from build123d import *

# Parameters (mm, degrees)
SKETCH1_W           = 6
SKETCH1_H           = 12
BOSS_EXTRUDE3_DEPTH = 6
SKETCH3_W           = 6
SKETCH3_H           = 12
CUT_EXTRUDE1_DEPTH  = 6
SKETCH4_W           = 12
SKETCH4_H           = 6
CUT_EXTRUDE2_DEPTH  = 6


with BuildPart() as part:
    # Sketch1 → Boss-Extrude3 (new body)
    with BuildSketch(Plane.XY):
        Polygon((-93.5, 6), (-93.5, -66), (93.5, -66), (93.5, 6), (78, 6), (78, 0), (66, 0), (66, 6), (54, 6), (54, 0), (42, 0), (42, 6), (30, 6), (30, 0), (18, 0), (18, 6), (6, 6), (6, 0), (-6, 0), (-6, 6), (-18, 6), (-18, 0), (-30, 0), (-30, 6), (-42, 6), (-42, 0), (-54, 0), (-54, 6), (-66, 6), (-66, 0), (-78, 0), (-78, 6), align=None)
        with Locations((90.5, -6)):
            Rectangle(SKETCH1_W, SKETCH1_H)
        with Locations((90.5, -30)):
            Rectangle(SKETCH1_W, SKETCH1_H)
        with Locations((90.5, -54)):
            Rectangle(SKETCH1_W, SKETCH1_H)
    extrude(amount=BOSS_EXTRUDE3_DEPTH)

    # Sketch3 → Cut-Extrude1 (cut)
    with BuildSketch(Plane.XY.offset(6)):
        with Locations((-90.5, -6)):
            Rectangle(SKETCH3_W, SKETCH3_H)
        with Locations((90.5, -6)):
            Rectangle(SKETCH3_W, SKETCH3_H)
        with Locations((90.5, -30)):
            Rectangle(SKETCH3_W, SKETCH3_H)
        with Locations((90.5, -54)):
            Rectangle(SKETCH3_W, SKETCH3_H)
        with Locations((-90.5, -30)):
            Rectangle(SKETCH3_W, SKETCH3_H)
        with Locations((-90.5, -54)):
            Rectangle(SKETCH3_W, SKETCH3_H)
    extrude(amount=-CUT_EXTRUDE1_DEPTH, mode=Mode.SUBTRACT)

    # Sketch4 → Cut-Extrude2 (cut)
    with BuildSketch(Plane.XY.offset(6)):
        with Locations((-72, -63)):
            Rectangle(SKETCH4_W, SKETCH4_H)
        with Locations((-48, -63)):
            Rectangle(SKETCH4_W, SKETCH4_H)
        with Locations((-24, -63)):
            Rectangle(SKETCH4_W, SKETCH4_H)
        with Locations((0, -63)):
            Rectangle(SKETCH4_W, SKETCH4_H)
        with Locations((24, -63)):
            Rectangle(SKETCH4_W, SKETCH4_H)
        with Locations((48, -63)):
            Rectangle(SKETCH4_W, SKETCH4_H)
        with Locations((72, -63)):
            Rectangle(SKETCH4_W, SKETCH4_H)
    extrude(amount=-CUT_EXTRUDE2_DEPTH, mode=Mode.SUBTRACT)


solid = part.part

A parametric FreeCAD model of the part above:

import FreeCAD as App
import Part
import Sketcher

doc = App.newDocument("Part")
body = doc.addObject("PartDesign::Body", "Body")

# Sketch on XY plane
sketch1 = body.newObject("Sketcher::SketchObject", "Sketch")
sketch1.AttachmentSupport = (doc.getObject("XY_Plane"), [""])
sketch1.MapMode = "FlatFace"
sketch1.addGeometry(Part.LineSegment(App.Vector(-66, 0, 0), App.Vector(-78, 0, 0)), False)
sketch1.addGeometry(Part.LineSegment(App.Vector(-78, 0, 0), App.Vector(-78, 6, 0)), False)
sketch1.addGeometry(Part.LineSegment(App.Vector(-78, 6, 0), App.Vector(-93.5, 6, 0)), False)
sketch1.addGeometry(Part.LineSegment(App.Vector(-93.5, 6, 0), App.Vector(-93.5, -66, 0)), False)
sketch1.addGeometry(Part.LineSegment(App.Vector(-93.5, -66, 0), App.Vector(93.5, -66, 0)), False)
sketch1.addGeometry(Part.LineSegment(App.Vector(93.5, -66, 0), App.Vector(93.5, 6, 0)), False)
sketch1.addGeometry(Part.LineSegment(App.Vector(93.5, 6, 0), App.Vector(78, 6, 0)), False)
sketch1.addGeometry(Part.LineSegment(App.Vector(78, 6, 0), App.Vector(78, 0, 0)), False)
sketch1.addGeometry(Part.LineSegment(App.Vector(78, 0, 0), App.Vector(66, 0, 0)), False)
sketch1.addGeometry(Part.LineSegment(App.Vector(66, 0, 0), App.Vector(66, 6, 0)), False)
sketch1.addGeometry(Part.LineSegment(App.Vector(66, 6, 0), App.Vector(54, 6, 0)), False)
sketch1.addGeometry(Part.LineSegment(App.Vector(54, 6, 0), App.Vector(54, 0, 0)), False)
sketch1.addGeometry(Part.LineSegment(App.Vector(54, 0, 0), App.Vector(42, 0, 0)), False)
sketch1.addGeometry(Part.LineSegment(App.Vector(42, 0, 0), App.Vector(42, 6, 0)), False)
sketch1.addGeometry(Part.LineSegment(App.Vector(42, 6, 0), App.Vector(30, 6, 0)), False)
sketch1.addGeometry(Part.LineSegment(App.Vector(30, 6, 0), App.Vector(30, 0, 0)), False)
sketch1.addGeometry(Part.LineSegment(App.Vector(30, 0, 0), App.Vector(18, 0, 0)), False)
sketch1.addGeometry(Part.LineSegment(App.Vector(18, 0, 0), App.Vector(18, 6, 0)), False)
sketch1.addGeometry(Part.LineSegment(App.Vector(18, 6, 0), App.Vector(6, 6, 0)), False)
sketch1.addGeometry(Part.LineSegment(App.Vector(6, 6, 0), App.Vector(6, 0, 0)), False)
sketch1.addGeometry(Part.LineSegment(App.Vector(6, 0, 0), App.Vector(-6, 0, 0)), False)
sketch1.addGeometry(Part.LineSegment(App.Vector(-6, 0, 0), App.Vector(-6, 6, 0)), False)
sketch1.addGeometry(Part.LineSegment(App.Vector(-6, 6, 0), App.Vector(-18, 6, 0)), False)
sketch1.addGeometry(Part.LineSegment(App.Vector(-18, 6, 0), App.Vector(-18, 0, 0)), False)
sketch1.addGeometry(Part.LineSegment(App.Vector(-18, 0, 0), App.Vector(-30, 0, 0)), False)
sketch1.addGeometry(Part.LineSegment(App.Vector(-30, 0, 0), App.Vector(-30, 6, 0)), False)
sketch1.addGeometry(Part.LineSegment(App.Vector(-30, 6, 0), App.Vector(-42, 6, 0)), False)
sketch1.addGeometry(Part.LineSegment(App.Vector(-42, 6, 0), App.Vector(-42, 0, 0)), False)
sketch1.addGeometry(Part.LineSegment(App.Vector(-42, 0, 0), App.Vector(-54, 0, 0)), False)
sketch1.addGeometry(Part.LineSegment(App.Vector(-54, 0, 0), App.Vector(-54, 6, 0)), False)
sketch1.addGeometry(Part.LineSegment(App.Vector(-54, 6, 0), App.Vector(-66, 6, 0)), False)
sketch1.addGeometry(Part.LineSegment(App.Vector(-66, 6, 0), App.Vector(-66, 0, 0)), False)
sketch1.addConstraint(Sketcher.Constraint("Coincident", 0, 2, 1, 1))
sketch1.addConstraint(Sketcher.Constraint("Coincident", 1, 2, 2, 1))
sketch1.addConstraint(Sketcher.Constraint("Coincident", 2, 2, 3, 1))
sketch1.addConstraint(Sketcher.Constraint("Coincident", 3, 2, 4, 1))
sketch1.addConstraint(Sketcher.Constraint("Coincident", 4, 2, 5, 1))
sketch1.addConstraint(Sketcher.Constraint("Coincident", 5, 2, 6, 1))
sketch1.addConstraint(Sketcher.Constraint("Coincident", 6, 2, 7, 1))
sketch1.addConstraint(Sketcher.Constraint("Coincident", 7, 2, 8, 1))
sketch1.addConstraint(Sketcher.Constraint("Coincident", 8, 2, 9, 1))
sketch1.addConstraint(Sketcher.Constraint("Coincident", 9, 2, 10, 1))
sketch1.addConstraint(Sketcher.Constraint("Coincident", 10, 2, 11, 1))
sketch1.addConstraint(Sketcher.Constraint("Coincident", 11, 2, 12, 1))
sketch1.addConstraint(Sketcher.Constraint("Coincident", 12, 2, 13, 1))
sketch1.addConstraint(Sketcher.Constraint("Coincident", 13, 2, 14, 1))
sketch1.addConstraint(Sketcher.Constraint("Coincident", 14, 2, 15, 1))
sketch1.addConstraint(Sketcher.Constraint("Coincident", 15, 2, 16, 1))
sketch1.addConstraint(Sketcher.Constraint("Coincident", 16, 2, 17, 1))
sketch1.addConstraint(Sketcher.Constraint("Coincident", 17, 2, 18, 1))
sketch1.addConstraint(Sketcher.Constraint("Coincident", 18, 2, 19, 1))
sketch1.addConstraint(Sketcher.Constraint("Coincident", 19, 2, 20, 1))
sketch1.addConstraint(Sketcher.Constraint("Coincident", 20, 2, 21, 1))
sketch1.addConstraint(Sketcher.Constraint("Coincident", 21, 2, 22, 1))
sketch1.addConstraint(Sketcher.Constraint("Coincident", 22, 2, 23, 1))
sketch1.addConstraint(Sketcher.Constraint("Coincident", 23, 2, 24, 1))
sketch1.addConstraint(Sketcher.Constraint("Coincident", 24, 2, 25, 1))
sketch1.addConstraint(Sketcher.Constraint("Coincident", 25, 2, 26, 1))
sketch1.addConstraint(Sketcher.Constraint("Coincident", 26, 2, 27, 1))
sketch1.addConstraint(Sketcher.Constraint("Coincident", 27, 2, 28, 1))
sketch1.addConstraint(Sketcher.Constraint("Coincident", 28, 2, 29, 1))
sketch1.addConstraint(Sketcher.Constraint("Coincident", 29, 2, 30, 1))
sketch1.addConstraint(Sketcher.Constraint("Coincident", 30, 2, 31, 1))
sketch1.addConstraint(Sketcher.Constraint("Coincident", 31, 2, 0, 1))
sketch1.addConstraint(Sketcher.Constraint("Horizontal", 0))
sketch1.addConstraint(Sketcher.Constraint("Vertical", 1))
sketch1.addConstraint(Sketcher.Constraint("Horizontal", 2))
sketch1.addConstraint(Sketcher.Constraint("Vertical", 3))
sketch1.addConstraint(Sketcher.Constraint("Horizontal", 4))
sketch1.addConstraint(Sketcher.Constraint("Vertical", 5))
sketch1.addConstraint(Sketcher.Constraint("Horizontal", 6))
sketch1.addConstraint(Sketcher.Constraint("Vertical", 7))
sketch1.addConstraint(Sketcher.Constraint("Horizontal", 8))
sketch1.addConstraint(Sketcher.Constraint("Vertical", 9))
sketch1.addConstraint(Sketcher.Constraint("Horizontal", 10))
sketch1.addConstraint(Sketcher.Constraint("Vertical", 11))
sketch1.addConstraint(Sketcher.Constraint("Horizontal", 12))
sketch1.addConstraint(Sketcher.Constraint("Vertical", 13))
sketch1.addConstraint(Sketcher.Constraint("Horizontal", 14))
sketch1.addConstraint(Sketcher.Constraint("Vertical", 15))
sketch1.addConstraint(Sketcher.Constraint("Horizontal", 16))
sketch1.addConstraint(Sketcher.Constraint("Vertical", 17))
sketch1.addConstraint(Sketcher.Constraint("Horizontal", 18))
sketch1.addConstraint(Sketcher.Constraint("Vertical", 19))
sketch1.addConstraint(Sketcher.Constraint("Horizontal", 20))
sketch1.addConstraint(Sketcher.Constraint("Vertical", 21))
sketch1.addConstraint(Sketcher.Constraint("Horizontal", 22))
sketch1.addConstraint(Sketcher.Constraint("Vertical", 23))
sketch1.addConstraint(Sketcher.Constraint("Horizontal", 24))
sketch1.addConstraint(Sketcher.Constraint("Vertical", 25))
sketch1.addConstraint(Sketcher.Constraint("Horizontal", 26))
sketch1.addConstraint(Sketcher.Constraint("Vertical", 27))
sketch1.addConstraint(Sketcher.Constraint("Horizontal", 28))
sketch1.addConstraint(Sketcher.Constraint("Vertical", 29))
sketch1.addConstraint(Sketcher.Constraint("Horizontal", 30))
sketch1.addConstraint(Sketcher.Constraint("Vertical", 31))
sketch1.addConstraint(Sketcher.Constraint("Symmetric", 0, 2, 7, 2, -1, 1))
sketch1.addConstraint(Sketcher.Constraint("Symmetric", 19, 2, 20, 2, -1, 1))
sketch1.addConstraint(Sketcher.Constraint("Symmetric", 16, 2, 23, 2, -1, 1))
sketch1.addConstraint(Sketcher.Constraint("Symmetric", 12, 2, 27, 2, -1, 1))
sketch1.addConstraint(Sketcher.Constraint("Symmetric", 2, 2, 5, 2, -2))
sketch1.addConstraint(Sketcher.Constraint("Symmetric", 15, 2, 24, 2, -2))
sketch1.addConstraint(Sketcher.Constraint("Symmetric", 11, 2, 28, 2, -2))
sketch1.addConstraint(Sketcher.Constraint("Symmetric", 9, 2, 30, 2, -2))
sketch1.addConstraint(Sketcher.Constraint("PointOnObject", 0, 2, -1))
sketch1.addConstraint(Sketcher.Constraint("Horizontal", 6, 2, 9, 2))
sketch1.addConstraint(Sketcher.Constraint("Horizontal", 10, 2, 13, 2))
sketch1.addConstraint(Sketcher.Constraint("Horizontal", 14, 2, 17, 2))
sketch1.addConstraint(Sketcher.Constraint("Horizontal", 18, 2, 21, 2))
sketch1.addConstraint(Sketcher.Constraint("Horizontal", 22, 2, 25, 2))
sketch1.addConstraint(Sketcher.Constraint("Equal", 8, 10))
sketch1.addConstraint(Sketcher.Constraint("Equal", 10, 12))
sketch1.addConstraint(Sketcher.Constraint("Equal", 12, 14))
sketch1.addConstraint(Sketcher.Constraint("Equal", 14, 16))
sketch1.addConstraint(Sketcher.Constraint("Equal", 16, 18))
sketch1.addConstraint(Sketcher.Constraint("Equal", 18, 20))
sketch1.addConstraint(Sketcher.Constraint("DistanceX", 0, 2, 0, 1, 12.0))
sketch1.addConstraint(Sketcher.Constraint("DistanceX", 4, 1, 4, 2, 187.0))
sketch1.addConstraint(Sketcher.Constraint("DistanceY", 1, 1, 1, 2, 6.0))
sketch1.addConstraint(Sketcher.Constraint("DistanceY", 3, 2, 3, 1, 72.0))
pad1 = body.newObject("PartDesign::Pad", "Pad")
pad1.Profile = sketch1
pad1.Length = 6

# Sketch on XY plane
sketch2 = body.newObject("Sketcher::SketchObject", "Sketch001")
sketch2.AttachmentSupport = (doc.getObject("XY_Plane"), [""])
sketch2.MapMode = "FlatFace"
sketch2.AttachmentOffset = App.Placement(App.Vector(0, 0, 6), App.Rotation())
sketch2.addGeometry(Part.LineSegment(App.Vector(-93.5, 0, 0), App.Vector(-93.5, -12, 0)), False)
sketch2.addGeometry(Part.LineSegment(App.Vector(-93.5, -12, 0), App.Vector(-87.5, -12, 0)), False)
sketch2.addGeometry(Part.LineSegment(App.Vector(-87.5, -12, 0), App.Vector(-87.5, 0, 0)), False)
sketch2.addGeometry(Part.LineSegment(App.Vector(-87.5, 0, 0), App.Vector(-93.5, 0, 0)), False)
sketch2.addGeometry(Part.LineSegment(App.Vector(87.5, 0, 0), App.Vector(87.5, -12, 0)), False)
sketch2.addGeometry(Part.LineSegment(App.Vector(87.5, -12, 0), App.Vector(93.5, -12, 0)), False)
sketch2.addGeometry(Part.LineSegment(App.Vector(93.5, -12, 0), App.Vector(93.5, 0, 0)), False)
sketch2.addGeometry(Part.LineSegment(App.Vector(93.5, 0, 0), App.Vector(87.5, 0, 0)), False)
sketch2.addGeometry(Part.LineSegment(App.Vector(87.5, -24, 0), App.Vector(87.5, -36, 0)), False)
sketch2.addGeometry(Part.LineSegment(App.Vector(87.5, -36, 0), App.Vector(93.5, -36, 0)), False)
sketch2.addGeometry(Part.LineSegment(App.Vector(93.5, -36, 0), App.Vector(93.5, -24, 0)), False)
sketch2.addGeometry(Part.LineSegment(App.Vector(93.5, -24, 0), App.Vector(87.5, -24, 0)), False)
sketch2.addGeometry(Part.LineSegment(App.Vector(87.5, -48, 0), App.Vector(87.5, -60, 0)), False)
sketch2.addGeometry(Part.LineSegment(App.Vector(87.5, -60, 0), App.Vector(93.5, -60, 0)), False)
sketch2.addGeometry(Part.LineSegment(App.Vector(93.5, -60, 0), App.Vector(93.5, -48, 0)), False)
sketch2.addGeometry(Part.LineSegment(App.Vector(93.5, -48, 0), App.Vector(87.5, -48, 0)), False)
sketch2.addGeometry(Part.LineSegment(App.Vector(-93.5, -24, 0), App.Vector(-93.5, -36, 0)), False)
sketch2.addGeometry(Part.LineSegment(App.Vector(-93.5, -36, 0), App.Vector(-87.5, -36, 0)), False)
sketch2.addGeometry(Part.LineSegment(App.Vector(-87.5, -36, 0), App.Vector(-87.5, -24, 0)), False)
sketch2.addGeometry(Part.LineSegment(App.Vector(-87.5, -24, 0), App.Vector(-93.5, -24, 0)), False)
sketch2.addGeometry(Part.LineSegment(App.Vector(-93.5, -48, 0), App.Vector(-93.5, -60, 0)), False)
sketch2.addGeometry(Part.LineSegment(App.Vector(-93.5, -60, 0), App.Vector(-87.5, -60, 0)), False)
sketch2.addGeometry(Part.LineSegment(App.Vector(-87.5, -60, 0), App.Vector(-87.5, -48, 0)), False)
sketch2.addGeometry(Part.LineSegment(App.Vector(-87.5, -48, 0), App.Vector(-93.5, -48, 0)), False)
sketch2.addConstraint(Sketcher.Constraint("Coincident", 0, 2, 1, 1))
sketch2.addConstraint(Sketcher.Constraint("Coincident", 1, 2, 2, 1))
sketch2.addConstraint(Sketcher.Constraint("Coincident", 2, 2, 3, 1))
sketch2.addConstraint(Sketcher.Constraint("Coincident", 3, 2, 0, 1))
sketch2.addConstraint(Sketcher.Constraint("Coincident", 4, 2, 5, 1))
sketch2.addConstraint(Sketcher.Constraint("Coincident", 5, 2, 6, 1))
sketch2.addConstraint(Sketcher.Constraint("Coincident", 6, 2, 7, 1))
sketch2.addConstraint(Sketcher.Constraint("Coincident", 7, 2, 4, 1))
sketch2.addConstraint(Sketcher.Constraint("Coincident", 8, 2, 9, 1))
sketch2.addConstraint(Sketcher.Constraint("Coincident", 9, 2, 10, 1))
sketch2.addConstraint(Sketcher.Constraint("Coincident", 10, 2, 11, 1))
sketch2.addConstraint(Sketcher.Constraint("Coincident", 11, 2, 8, 1))
sketch2.addConstraint(Sketcher.Constraint("Coincident", 12, 2, 13, 1))
sketch2.addConstraint(Sketcher.Constraint("Coincident", 13, 2, 14, 1))
sketch2.addConstraint(Sketcher.Constraint("Coincident", 14, 2, 15, 1))
sketch2.addConstraint(Sketcher.Constraint("Coincident", 15, 2, 12, 1))
sketch2.addConstraint(Sketcher.Constraint("Coincident", 16, 2, 17, 1))
sketch2.addConstraint(Sketcher.Constraint("Coincident", 17, 2, 18, 1))
sketch2.addConstraint(Sketcher.Constraint("Coincident", 18, 2, 19, 1))
sketch2.addConstraint(Sketcher.Constraint("Coincident", 19, 2, 16, 1))
sketch2.addConstraint(Sketcher.Constraint("Coincident", 20, 2, 21, 1))
sketch2.addConstraint(Sketcher.Constraint("Coincident", 21, 2, 22, 1))
sketch2.addConstraint(Sketcher.Constraint("Coincident", 22, 2, 23, 1))
sketch2.addConstraint(Sketcher.Constraint("Coincident", 23, 2, 20, 1))
sketch2.addConstraint(Sketcher.Constraint("Vertical", 0))
sketch2.addConstraint(Sketcher.Constraint("Horizontal", 1))
sketch2.addConstraint(Sketcher.Constraint("Vertical", 2))
sketch2.addConstraint(Sketcher.Constraint("Horizontal", 3))
sketch2.addConstraint(Sketcher.Constraint("Vertical", 4))
sketch2.addConstraint(Sketcher.Constraint("Horizontal", 5))
sketch2.addConstraint(Sketcher.Constraint("Vertical", 6))
sketch2.addConstraint(Sketcher.Constraint("Horizontal", 7))
sketch2.addConstraint(Sketcher.Constraint("Vertical", 8))
sketch2.addConstraint(Sketcher.Constraint("Horizontal", 9))
sketch2.addConstraint(Sketcher.Constraint("Vertical", 10))
sketch2.addConstraint(Sketcher.Constraint("Horizontal", 11))
sketch2.addConstraint(Sketcher.Constraint("Vertical", 12))
sketch2.addConstraint(Sketcher.Constraint("Horizontal", 13))
sketch2.addConstraint(Sketcher.Constraint("Vertical", 14))
sketch2.addConstraint(Sketcher.Constraint("Horizontal", 15))
sketch2.addConstraint(Sketcher.Constraint("Vertical", 16))
sketch2.addConstraint(Sketcher.Constraint("Horizontal", 17))
sketch2.addConstraint(Sketcher.Constraint("Vertical", 18))
sketch2.addConstraint(Sketcher.Constraint("Horizontal", 19))
sketch2.addConstraint(Sketcher.Constraint("Vertical", 20))
sketch2.addConstraint(Sketcher.Constraint("Horizontal", 21))
sketch2.addConstraint(Sketcher.Constraint("Vertical", 22))
sketch2.addConstraint(Sketcher.Constraint("Horizontal", 23))
sketch2.addConstraint(Sketcher.Constraint("Symmetric", 3, 2, 6, 2, -1, 1))
sketch2.addConstraint(Sketcher.Constraint("Symmetric", 1, 2, 4, 2, -2))
sketch2.addConstraint(Sketcher.Constraint("Symmetric", 9, 2, 16, 2, -2))
sketch2.addConstraint(Sketcher.Constraint("Symmetric", 11, 2, 18, 2, -2))
sketch2.addConstraint(Sketcher.Constraint("Symmetric", 13, 2, 20, 2, -2))
sketch2.addConstraint(Sketcher.Constraint("Symmetric", 15, 2, 22, 2, -2))
sketch2.addConstraint(Sketcher.Constraint("PointOnObject", 2, 2, -1))
sketch2.addConstraint(Sketcher.Constraint("Vertical", 7, 2, 8, 2))
sketch2.addConstraint(Sketcher.Constraint("Vertical", 6, 2, 9, 2))
sketch2.addConstraint(Sketcher.Constraint("Vertical", 11, 2, 12, 2))
sketch2.addConstraint(Sketcher.Constraint("Vertical", 10, 2, 13, 2))
sketch2.addConstraint(Sketcher.Constraint("Equal", 6, 8))
sketch2.addConstraint(Sketcher.Constraint("Equal", 10, 12))
sketch2.addConstraint(Sketcher.Constraint("DistanceX", 1, 1, 1, 2, 6.0))
sketch2.addConstraint(Sketcher.Constraint("DistanceY", 0, 2, 0, 1, 12.0))
sketch2.addConstraint(Sketcher.Constraint("DistanceY", 8, 2, -1, 1, 36.0))
sketch2.addConstraint(Sketcher.Constraint("DistanceY", 12, 2, -1, 1, 60.0))
sketch2.addConstraint(Sketcher.Constraint("DistanceX", 1, 2, 4, 2, 175.0))
pocket1 = body.newObject("PartDesign::Pocket", "Pocket")
pocket1.Profile = sketch2
pocket1.Length = 6

# Sketch on XY plane
sketch3 = body.newObject("Sketcher::SketchObject", "Sketch002")
sketch3.AttachmentSupport = (doc.getObject("XY_Plane"), [""])
sketch3.MapMode = "FlatFace"
sketch3.AttachmentOffset = App.Placement(App.Vector(0, 0, 6), App.Rotation())
sketch3.addGeometry(Part.LineSegment(App.Vector(-78, -60, 0), App.Vector(-78, -66, 0)), False)
sketch3.addGeometry(Part.LineSegment(App.Vector(-78, -66, 0), App.Vector(-66, -66, 0)), False)
sketch3.addGeometry(Part.LineSegment(App.Vector(-66, -66, 0), App.Vector(-66, -60, 0)), False)
sketch3.addGeometry(Part.LineSegment(App.Vector(-66, -60, 0), App.Vector(-78, -60, 0)), False)
sketch3.addGeometry(Part.LineSegment(App.Vector(-54, -60, 0), App.Vector(-54, -66, 0)), False)
sketch3.addGeometry(Part.LineSegment(App.Vector(-54, -66, 0), App.Vector(-42, -66, 0)), False)
sketch3.addGeometry(Part.LineSegment(App.Vector(-42, -66, 0), App.Vector(-42, -60, 0)), False)
sketch3.addGeometry(Part.LineSegment(App.Vector(-42, -60, 0), App.Vector(-54, -60, 0)), False)
sketch3.addGeometry(Part.LineSegment(App.Vector(-30, -60, 0), App.Vector(-30, -66, 0)), False)
sketch3.addGeometry(Part.LineSegment(App.Vector(-30, -66, 0), App.Vector(-18, -66, 0)), False)
sketch3.addGeometry(Part.LineSegment(App.Vector(-18, -66, 0), App.Vector(-18, -60, 0)), False)
sketch3.addGeometry(Part.LineSegment(App.Vector(-18, -60, 0), App.Vector(-30, -60, 0)), False)
sketch3.addGeometry(Part.LineSegment(App.Vector(-6, -60, 0), App.Vector(-6, -66, 0)), False)
sketch3.addGeometry(Part.LineSegment(App.Vector(-6, -66, 0), App.Vector(6, -66, 0)), False)
sketch3.addGeometry(Part.LineSegment(App.Vector(6, -66, 0), App.Vector(6, -60, 0)), False)
sketch3.addGeometry(Part.LineSegment(App.Vector(6, -60, 0), App.Vector(-6, -60, 0)), False)
sketch3.addGeometry(Part.LineSegment(App.Vector(18, -60, 0), App.Vector(18, -66, 0)), False)
sketch3.addGeometry(Part.LineSegment(App.Vector(18, -66, 0), App.Vector(30, -66, 0)), False)
sketch3.addGeometry(Part.LineSegment(App.Vector(30, -66, 0), App.Vector(30, -60, 0)), False)
sketch3.addGeometry(Part.LineSegment(App.Vector(30, -60, 0), App.Vector(18, -60, 0)), False)
sketch3.addGeometry(Part.LineSegment(App.Vector(42, -60, 0), App.Vector(42, -66, 0)), False)
sketch3.addGeometry(Part.LineSegment(App.Vector(42, -66, 0), App.Vector(54, -66, 0)), False)
sketch3.addGeometry(Part.LineSegment(App.Vector(54, -66, 0), App.Vector(54, -60, 0)), False)
sketch3.addGeometry(Part.LineSegment(App.Vector(54, -60, 0), App.Vector(42, -60, 0)), False)
sketch3.addGeometry(Part.LineSegment(App.Vector(66, -60, 0), App.Vector(66, -66, 0)), False)
sketch3.addGeometry(Part.LineSegment(App.Vector(66, -66, 0), App.Vector(78, -66, 0)), False)
sketch3.addGeometry(Part.LineSegment(App.Vector(78, -66, 0), App.Vector(78, -60, 0)), False)
sketch3.addGeometry(Part.LineSegment(App.Vector(78, -60, 0), App.Vector(66, -60, 0)), False)
sketch3.addConstraint(Sketcher.Constraint("Coincident", 0, 2, 1, 1))
sketch3.addConstraint(Sketcher.Constraint("Coincident", 1, 2, 2, 1))
sketch3.addConstraint(Sketcher.Constraint("Coincident", 2, 2, 3, 1))
sketch3.addConstraint(Sketcher.Constraint("Coincident", 3, 2, 0, 1))
sketch3.addConstraint(Sketcher.Constraint("Coincident", 4, 2, 5, 1))
sketch3.addConstraint(Sketcher.Constraint("Coincident", 5, 2, 6, 1))
sketch3.addConstraint(Sketcher.Constraint("Coincident", 6, 2, 7, 1))
sketch3.addConstraint(Sketcher.Constraint("Coincident", 7, 2, 4, 1))
sketch3.addConstraint(Sketcher.Constraint("Coincident", 8, 2, 9, 1))
sketch3.addConstraint(Sketcher.Constraint("Coincident", 9, 2, 10, 1))
sketch3.addConstraint(Sketcher.Constraint("Coincident", 10, 2, 11, 1))
sketch3.addConstraint(Sketcher.Constraint("Coincident", 11, 2, 8, 1))
sketch3.addConstraint(Sketcher.Constraint("Coincident", 12, 2, 13, 1))
sketch3.addConstraint(Sketcher.Constraint("Coincident", 13, 2, 14, 1))
sketch3.addConstraint(Sketcher.Constraint("Coincident", 14, 2, 15, 1))
sketch3.addConstraint(Sketcher.Constraint("Coincident", 15, 2, 12, 1))
sketch3.addConstraint(Sketcher.Constraint("Coincident", 16, 2, 17, 1))
sketch3.addConstraint(Sketcher.Constraint("Coincident", 17, 2, 18, 1))
sketch3.addConstraint(Sketcher.Constraint("Coincident", 18, 2, 19, 1))
sketch3.addConstraint(Sketcher.Constraint("Coincident", 19, 2, 16, 1))
sketch3.addConstraint(Sketcher.Constraint("Coincident", 20, 2, 21, 1))
sketch3.addConstraint(Sketcher.Constraint("Coincident", 21, 2, 22, 1))
sketch3.addConstraint(Sketcher.Constraint("Coincident", 22, 2, 23, 1))
sketch3.addConstraint(Sketcher.Constraint("Coincident", 23, 2, 20, 1))
sketch3.addConstraint(Sketcher.Constraint("Coincident", 24, 2, 25, 1))
sketch3.addConstraint(Sketcher.Constraint("Coincident", 25, 2, 26, 1))
sketch3.addConstraint(Sketcher.Constraint("Coincident", 26, 2, 27, 1))
sketch3.addConstraint(Sketcher.Constraint("Coincident", 27, 2, 24, 1))
sketch3.addConstraint(Sketcher.Constraint("Vertical", 0))
sketch3.addConstraint(Sketcher.Constraint("Horizontal", 1))
sketch3.addConstraint(Sketcher.Constraint("Vertical", 2))
sketch3.addConstraint(Sketcher.Constraint("Horizontal", 3))
sketch3.addConstraint(Sketcher.Constraint("Vertical", 4))
sketch3.addConstraint(Sketcher.Constraint("Horizontal", 5))
sketch3.addConstraint(Sketcher.Constraint("Vertical", 6))
sketch3.addConstraint(Sketcher.Constraint("Horizontal", 7))
sketch3.addConstraint(Sketcher.Constraint("Vertical", 8))
sketch3.addConstraint(Sketcher.Constraint("Horizontal", 9))
sketch3.addConstraint(Sketcher.Constraint("Vertical", 10))
sketch3.addConstraint(Sketcher.Constraint("Horizontal", 11))
sketch3.addConstraint(Sketcher.Constraint("Vertical", 12))
sketch3.addConstraint(Sketcher.Constraint("Horizontal", 13))
sketch3.addConstraint(Sketcher.Constraint("Vertical", 14))
sketch3.addConstraint(Sketcher.Constraint("Horizontal", 15))
sketch3.addConstraint(Sketcher.Constraint("Vertical", 16))
sketch3.addConstraint(Sketcher.Constraint("Horizontal", 17))
sketch3.addConstraint(Sketcher.Constraint("Vertical", 18))
sketch3.addConstraint(Sketcher.Constraint("Horizontal", 19))
sketch3.addConstraint(Sketcher.Constraint("Vertical", 20))
sketch3.addConstraint(Sketcher.Constraint("Horizontal", 21))
sketch3.addConstraint(Sketcher.Constraint("Vertical", 22))
sketch3.addConstraint(Sketcher.Constraint("Horizontal", 23))
sketch3.addConstraint(Sketcher.Constraint("Vertical", 24))
sketch3.addConstraint(Sketcher.Constraint("Horizontal", 25))
sketch3.addConstraint(Sketcher.Constraint("Vertical", 26))
sketch3.addConstraint(Sketcher.Constraint("Horizontal", 27))
sketch3.addConstraint(Sketcher.Constraint("Symmetric", 9, 2, 16, 2, -2))
sketch3.addConstraint(Sketcher.Constraint("Symmetric", 11, 2, 18, 2, -2))
sketch3.addConstraint(Sketcher.Constraint("Symmetric", 5, 2, 20, 2, -2))
sketch3.addConstraint(Sketcher.Constraint("Symmetric", 7, 2, 22, 2, -2))
sketch3.addConstraint(Sketcher.Constraint("Symmetric", 1, 2, 24, 2, -2))
sketch3.addConstraint(Sketcher.Constraint("Symmetric", 3, 2, 26, 2, -2))
sketch3.addConstraint(Sketcher.Constraint("Horizontal", 1, 2, 4, 2))
sketch3.addConstraint(Sketcher.Constraint("Horizontal", 3, 2, 6, 2))
sketch3.addConstraint(Sketcher.Constraint("Horizontal", 5, 2, 8, 2))
sketch3.addConstraint(Sketcher.Constraint("Horizontal", 7, 2, 10, 2))
sketch3.addConstraint(Sketcher.Constraint("Horizontal", 9, 2, 12, 2))
sketch3.addConstraint(Sketcher.Constraint("Horizontal", 11, 2, 14, 2))
sketch3.addConstraint(Sketcher.Constraint("Equal", 3, 5))
sketch3.addConstraint(Sketcher.Constraint("Equal", 7, 9))
sketch3.addConstraint(Sketcher.Constraint("Equal", 11, 13))
sketch3.addConstraint(Sketcher.Constraint("DistanceX", 1, 1, 1, 2, 12.0))
sketch3.addConstraint(Sketcher.Constraint("DistanceY", 0, 2, 0, 1, 6.0))
sketch3.addConstraint(Sketcher.Constraint("DistanceX", 0, 2, -1, 1, 78.0))
sketch3.addConstraint(Sketcher.Constraint("DistanceY", 0, 2, -1, 1, 66.0))
sketch3.addConstraint(Sketcher.Constraint("DistanceX", 4, 2, -1, 1, 54.0))
sketch3.addConstraint(Sketcher.Constraint("DistanceX", 8, 2, -1, 1, 30.0))
sketch3.addConstraint(Sketcher.Constraint("DistanceX", 12, 2, -1, 1, 6.0))
pocket2 = body.newObject("PartDesign::Pocket", "Pocket001")
pocket2.Profile = sketch3
pocket2.Length = 6

doc.recompute()
